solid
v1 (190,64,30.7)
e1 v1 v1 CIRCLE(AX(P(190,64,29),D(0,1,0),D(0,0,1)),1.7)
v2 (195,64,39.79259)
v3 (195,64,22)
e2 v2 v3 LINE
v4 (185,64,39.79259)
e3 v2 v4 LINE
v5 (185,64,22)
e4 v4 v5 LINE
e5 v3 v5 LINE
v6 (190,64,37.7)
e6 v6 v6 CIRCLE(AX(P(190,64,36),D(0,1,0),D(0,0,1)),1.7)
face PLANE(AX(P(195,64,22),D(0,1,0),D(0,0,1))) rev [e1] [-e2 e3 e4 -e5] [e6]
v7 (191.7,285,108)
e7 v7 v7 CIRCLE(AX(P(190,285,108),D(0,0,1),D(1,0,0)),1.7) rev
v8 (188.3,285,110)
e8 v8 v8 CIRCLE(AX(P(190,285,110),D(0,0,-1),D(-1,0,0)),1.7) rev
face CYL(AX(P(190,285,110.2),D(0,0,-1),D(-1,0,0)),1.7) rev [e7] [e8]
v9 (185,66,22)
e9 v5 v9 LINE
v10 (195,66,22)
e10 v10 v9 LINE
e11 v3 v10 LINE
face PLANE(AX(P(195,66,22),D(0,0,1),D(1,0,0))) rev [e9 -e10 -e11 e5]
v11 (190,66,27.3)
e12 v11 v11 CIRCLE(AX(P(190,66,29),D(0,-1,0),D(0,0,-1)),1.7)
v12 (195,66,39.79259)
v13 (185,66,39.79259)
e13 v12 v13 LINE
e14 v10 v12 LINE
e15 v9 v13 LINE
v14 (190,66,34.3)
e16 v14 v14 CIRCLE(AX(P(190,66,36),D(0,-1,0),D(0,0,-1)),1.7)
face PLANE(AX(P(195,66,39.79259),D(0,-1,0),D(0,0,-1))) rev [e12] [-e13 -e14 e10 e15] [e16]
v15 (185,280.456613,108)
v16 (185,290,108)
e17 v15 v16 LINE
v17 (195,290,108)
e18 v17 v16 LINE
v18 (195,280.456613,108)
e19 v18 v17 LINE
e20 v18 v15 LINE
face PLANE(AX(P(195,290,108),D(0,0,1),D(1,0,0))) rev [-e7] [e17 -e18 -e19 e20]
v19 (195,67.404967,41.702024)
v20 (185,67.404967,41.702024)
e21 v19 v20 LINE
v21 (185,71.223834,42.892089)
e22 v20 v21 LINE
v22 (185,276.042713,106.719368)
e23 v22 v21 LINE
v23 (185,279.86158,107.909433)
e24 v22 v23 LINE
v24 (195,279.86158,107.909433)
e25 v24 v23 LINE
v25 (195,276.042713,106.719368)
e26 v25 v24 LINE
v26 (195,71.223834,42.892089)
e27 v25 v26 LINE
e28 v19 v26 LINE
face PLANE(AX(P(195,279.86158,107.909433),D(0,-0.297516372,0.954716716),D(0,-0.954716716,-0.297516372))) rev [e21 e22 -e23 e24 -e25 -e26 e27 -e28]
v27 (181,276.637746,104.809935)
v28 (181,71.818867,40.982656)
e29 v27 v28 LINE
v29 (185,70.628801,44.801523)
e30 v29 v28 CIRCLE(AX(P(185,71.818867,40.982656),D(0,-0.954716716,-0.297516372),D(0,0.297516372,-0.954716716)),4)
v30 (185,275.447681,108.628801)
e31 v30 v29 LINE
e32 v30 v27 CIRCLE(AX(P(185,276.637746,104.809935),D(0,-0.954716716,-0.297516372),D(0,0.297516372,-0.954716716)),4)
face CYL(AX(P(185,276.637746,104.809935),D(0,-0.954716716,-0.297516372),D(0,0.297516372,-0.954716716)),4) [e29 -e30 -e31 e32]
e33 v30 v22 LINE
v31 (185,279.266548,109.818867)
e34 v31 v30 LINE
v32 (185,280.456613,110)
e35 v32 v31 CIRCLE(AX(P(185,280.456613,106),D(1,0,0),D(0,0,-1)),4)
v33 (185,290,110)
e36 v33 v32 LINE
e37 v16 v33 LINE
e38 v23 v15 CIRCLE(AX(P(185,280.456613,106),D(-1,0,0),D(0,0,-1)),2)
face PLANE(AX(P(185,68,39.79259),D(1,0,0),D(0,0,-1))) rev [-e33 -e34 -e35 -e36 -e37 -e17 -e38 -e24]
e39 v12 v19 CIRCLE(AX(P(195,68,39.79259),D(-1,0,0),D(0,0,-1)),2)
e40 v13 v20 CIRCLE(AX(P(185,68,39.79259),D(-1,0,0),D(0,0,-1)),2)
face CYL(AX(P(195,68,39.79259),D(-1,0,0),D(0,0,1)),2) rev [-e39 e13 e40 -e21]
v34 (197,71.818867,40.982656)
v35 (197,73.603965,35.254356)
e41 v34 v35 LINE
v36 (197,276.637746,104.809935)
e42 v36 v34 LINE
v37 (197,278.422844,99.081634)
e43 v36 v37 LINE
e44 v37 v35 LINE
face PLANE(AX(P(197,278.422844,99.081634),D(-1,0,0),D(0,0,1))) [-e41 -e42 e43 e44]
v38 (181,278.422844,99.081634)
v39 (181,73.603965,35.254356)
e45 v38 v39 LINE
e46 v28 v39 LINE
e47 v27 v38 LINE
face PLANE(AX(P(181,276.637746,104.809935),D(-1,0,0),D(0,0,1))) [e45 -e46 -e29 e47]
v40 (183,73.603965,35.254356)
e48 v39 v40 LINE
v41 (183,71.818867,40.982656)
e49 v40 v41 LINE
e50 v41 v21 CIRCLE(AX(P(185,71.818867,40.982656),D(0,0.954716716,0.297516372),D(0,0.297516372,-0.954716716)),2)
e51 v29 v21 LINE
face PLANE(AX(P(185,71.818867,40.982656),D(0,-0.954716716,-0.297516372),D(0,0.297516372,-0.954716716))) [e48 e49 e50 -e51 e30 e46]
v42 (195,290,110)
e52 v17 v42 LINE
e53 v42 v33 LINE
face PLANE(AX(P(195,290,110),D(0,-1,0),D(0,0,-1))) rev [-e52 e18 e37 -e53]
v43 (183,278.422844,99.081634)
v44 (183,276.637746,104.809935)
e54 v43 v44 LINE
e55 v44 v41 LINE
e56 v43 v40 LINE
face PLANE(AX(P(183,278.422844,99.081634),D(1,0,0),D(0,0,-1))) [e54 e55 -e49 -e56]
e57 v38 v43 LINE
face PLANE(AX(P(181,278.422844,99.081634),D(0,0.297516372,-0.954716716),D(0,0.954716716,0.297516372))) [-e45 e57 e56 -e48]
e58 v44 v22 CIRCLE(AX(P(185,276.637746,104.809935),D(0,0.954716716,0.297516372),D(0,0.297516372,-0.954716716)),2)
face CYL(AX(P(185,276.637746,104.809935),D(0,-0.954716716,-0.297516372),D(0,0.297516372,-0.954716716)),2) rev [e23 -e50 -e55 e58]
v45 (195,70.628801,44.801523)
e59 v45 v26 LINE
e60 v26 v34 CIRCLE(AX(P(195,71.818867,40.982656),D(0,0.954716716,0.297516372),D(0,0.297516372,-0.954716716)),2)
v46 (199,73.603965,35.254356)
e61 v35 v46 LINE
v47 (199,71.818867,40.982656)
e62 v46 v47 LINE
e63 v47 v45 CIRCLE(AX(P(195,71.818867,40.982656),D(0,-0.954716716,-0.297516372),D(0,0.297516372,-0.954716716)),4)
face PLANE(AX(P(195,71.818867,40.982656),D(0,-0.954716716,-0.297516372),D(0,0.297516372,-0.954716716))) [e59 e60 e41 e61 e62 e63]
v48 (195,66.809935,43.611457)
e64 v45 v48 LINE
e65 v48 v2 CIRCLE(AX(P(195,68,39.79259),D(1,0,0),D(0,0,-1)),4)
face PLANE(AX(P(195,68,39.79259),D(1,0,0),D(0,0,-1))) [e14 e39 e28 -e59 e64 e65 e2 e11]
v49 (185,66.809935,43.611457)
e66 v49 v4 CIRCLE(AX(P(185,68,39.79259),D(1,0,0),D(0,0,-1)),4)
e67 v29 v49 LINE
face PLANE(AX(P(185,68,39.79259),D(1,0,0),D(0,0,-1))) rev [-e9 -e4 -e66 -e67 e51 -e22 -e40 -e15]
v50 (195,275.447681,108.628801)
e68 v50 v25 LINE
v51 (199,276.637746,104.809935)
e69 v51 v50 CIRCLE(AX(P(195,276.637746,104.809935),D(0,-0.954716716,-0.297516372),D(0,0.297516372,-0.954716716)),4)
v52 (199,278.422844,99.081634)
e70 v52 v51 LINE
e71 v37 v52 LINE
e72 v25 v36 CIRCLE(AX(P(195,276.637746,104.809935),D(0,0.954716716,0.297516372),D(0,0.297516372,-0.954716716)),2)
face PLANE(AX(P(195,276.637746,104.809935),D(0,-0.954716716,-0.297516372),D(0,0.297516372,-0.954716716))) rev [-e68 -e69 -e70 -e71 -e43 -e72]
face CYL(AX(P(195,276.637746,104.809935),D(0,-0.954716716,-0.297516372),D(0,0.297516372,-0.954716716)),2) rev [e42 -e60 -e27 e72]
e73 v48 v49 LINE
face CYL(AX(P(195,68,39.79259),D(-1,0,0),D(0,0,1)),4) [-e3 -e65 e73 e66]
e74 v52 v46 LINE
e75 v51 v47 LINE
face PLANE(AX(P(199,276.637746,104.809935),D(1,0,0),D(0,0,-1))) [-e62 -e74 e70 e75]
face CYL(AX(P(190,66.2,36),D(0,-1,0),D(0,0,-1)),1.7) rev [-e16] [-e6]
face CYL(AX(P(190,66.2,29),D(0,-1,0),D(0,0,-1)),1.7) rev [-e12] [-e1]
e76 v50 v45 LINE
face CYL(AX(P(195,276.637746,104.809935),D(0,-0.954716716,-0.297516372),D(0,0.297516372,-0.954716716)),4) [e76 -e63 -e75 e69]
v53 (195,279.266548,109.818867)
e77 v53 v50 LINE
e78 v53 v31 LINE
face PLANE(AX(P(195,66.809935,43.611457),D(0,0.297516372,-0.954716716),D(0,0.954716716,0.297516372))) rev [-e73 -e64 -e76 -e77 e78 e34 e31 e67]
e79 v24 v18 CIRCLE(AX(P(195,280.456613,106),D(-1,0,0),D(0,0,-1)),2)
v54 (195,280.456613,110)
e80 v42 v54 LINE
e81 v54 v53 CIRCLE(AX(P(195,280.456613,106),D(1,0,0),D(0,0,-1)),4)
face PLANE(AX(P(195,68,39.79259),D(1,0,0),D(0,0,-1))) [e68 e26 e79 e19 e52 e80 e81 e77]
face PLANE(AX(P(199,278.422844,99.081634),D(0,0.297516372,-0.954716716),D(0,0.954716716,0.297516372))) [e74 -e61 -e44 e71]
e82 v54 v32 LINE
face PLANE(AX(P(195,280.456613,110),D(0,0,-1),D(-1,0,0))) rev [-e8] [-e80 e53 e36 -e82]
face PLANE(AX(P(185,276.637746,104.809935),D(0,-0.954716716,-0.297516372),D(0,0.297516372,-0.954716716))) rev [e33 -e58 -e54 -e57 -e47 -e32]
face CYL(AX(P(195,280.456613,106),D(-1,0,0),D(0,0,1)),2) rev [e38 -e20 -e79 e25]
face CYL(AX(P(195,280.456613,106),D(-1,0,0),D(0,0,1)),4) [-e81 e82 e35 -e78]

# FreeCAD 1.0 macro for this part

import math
import FreeCAD as App
import Part
import Sketcher

V = App.Vector
Q = App.Units.Quantity

doc = App.newDocument("Part")
body = doc.addObject("PartDesign::Body", "Body")

# Sketch on YZ plane
sketch1 = doc.addObject("Sketcher::SketchObject", "Sketch")
body.addObject(sketch1)
sketch1.AttachmentSupport = (doc.YZ_Plane, [""])
sketch1.MapMode = "FlatFace"
sketch1.AttachmentOffset = App.Placement(V(0, 0, 185), App.Rotation())
sketch1.addGeometry(Part.LineSegment(V(64, 39.79259, 0), V(64, 22, 0)), False)
sketch1.addGeometry(Part.LineSegment(V(64, 22, 0), V(66, 22, 0)), False)
sketch1.addGeometry(Part.LineSegment(V(66, 22, 0), V(66, 39.79259, 0)), False)
sketch1.addGeometry(Part.ArcOfCircle(Part.Circle(V(68, 39.79259, 0), V(0, 0, 1), 2), math.radians(107.308492), math.radians(180)), False)
sketch1.addGeometry(Part.LineSegment(V(67.404967, 41.702024, 0), V(279.86158, 107.909433, 0)), False)
sketch1.addGeometry(Part.ArcOfCircle(Part.Circle(V(280.456613, 106, 0), V(0, 0, 1), 2), math.radians(90), math.radians(107.308491)), False)
sketch1.addGeometry(Part.LineSegment(V(280.456613, 108, 0), V(290, 108, 0)), False)
sketch1.addGeometry(Part.LineSegment(V(290, 108, 0), V(290, 110, 0)), False)
sketch1.addGeometry(Part.LineSegment(V(290, 110, 0), V(280.456613, 110, 0)), False)
sketch1.addGeometry(Part.ArcOfCircle(Part.Circle(V(280.456613, 106, 0), V(0, 0, 1), 4), math.radians(90), math.radians(107.308492)), False)
sketch1.addGeometry(Part.LineSegment(V(279.266548, 109.818867, 0), V(66.809935, 43.611457, 0)), False)
sketch1.addGeometry(Part.ArcOfCircle(Part.Circle(V(68, 39.79259, 0), V(0, 0, 1), 4), math.radians(107.308492), math.radians(180)), False)
sketch1.addConstraint(Sketcher.Constraint("Coincident", 0, 2, 1, 1))
sketch1.addConstraint(Sketcher.Constraint("Coincident", 1, 2, 2, 1))
sketch1.addConstraint(Sketcher.Constraint("Tangent", 2, 2, 3, 2))
sketch1.addConstraint(Sketcher.Constraint("Tangent", 3, 1, 4, 1))
sketch1.addConstraint(Sketcher.Constraint("Tangent", 4, 2, 5, 2))
sketch1.addConstraint(Sketcher.Constraint("Tangent", 5, 1, 6, 1))
sketch1.addConstraint(Sketcher.Constraint("Coincident", 6, 2, 7, 1))
sketch1.addConstraint(Sketcher.Constraint("Coincident", 7, 2, 8, 1))
sketch1.addConstraint(Sketcher.Constraint("Tangent", 8, 2, 9, 1))
sketch1.addConstraint(Sketcher.Constraint("Tangent", 9, 2, 10, 1))
sketch1.addConstraint(Sketcher.Constraint("Tangent", 10, 2, 11, 1))
sketch1.addConstraint(Sketcher.Constraint("Tangent", 11, 2, 0, 1))
sketch1.addConstraint(Sketcher.Constraint("Vertical", 0))
sketch1.addConstraint(Sketcher.Constraint("Horizontal", 1))
sketch1.addConstraint(Sketcher.Constraint("Vertical", 2))
sketch1.addConstraint(Sketcher.Constraint("Horizontal", 6))
sketch1.addConstraint(Sketcher.Constraint("Vertical", 7))
sketch1.addConstraint(Sketcher.Constraint("Horizontal", 8))
sketch1.addConstraint(Sketcher.Constraint("Coincident", 9, 3, 5, 3))
sketch1.addConstraint(Sketcher.Constraint("Coincident", 11, 3, 3, 3))
sketch1.addConstraint(Sketcher.Constraint("Equal", 3, 5))
sketch1.addConstraint(Sketcher.Constraint("Equal", 9, 11))
sketch1.addConstraint(Sketcher.Constraint("Radius", 3, Q("2 mm")))
sketch1.addConstraint(Sketcher.Constraint("Radius", 9, Q("4 mm")))
sketch1.addConstraint(Sketcher.Constraint("DistanceX", -1, 1, 3, 3, Q("68 mm")))
sketch1.addConstraint(Sketcher.Constraint("DistanceY", -1, 1, 5, 3, Q("106 mm")))
sketch1.addConstraint(Sketcher.Constraint("DistanceY", -1, 1, 0, 2, Q("22 mm")))
sketch1.addConstraint(Sketcher.Constraint("DistanceX", -1, 1, 6, 2, Q("290 mm")))
sketch1.addConstraint(Sketcher.Constraint("DistanceY", 0, 2, 0, 1, Q("17.79259 mm")))
sketch1.addConstraint(Sketcher.Constraint("Distance", 4, Q("222.533668 mm")))
pad1 = doc.addObject("PartDesign::Pad", "Pad")
body.addObject(pad1)
pad1.Profile = sketch1
pad1.Length = 10

# Sketch on an angled plane
sketch2 = doc.addObject("Sketcher::SketchObject", "Sketch001")
body.addObject(sketch2)
sketch2.Placement = App.Placement(V(0, 77.10262, 24.027328), App.Rotation(V(-1, 0, 0), V(0, 0.297516372, -0.954716716), V(0, -0.954716716, -0.297516372), "ZXY"))
sketch2.addGeometry(Part.LineSegment(V(-181, -17.759538, 0), V(-181, -11.759538, 0)), False)
sketch2.addGeometry(Part.LineSegment(V(-181, -11.759538, 0), V(-183, -11.759538, 0)), False)
sketch2.addGeometry(Part.LineSegment(V(-183, -11.759538, 0), V(-183, -17.759538, 0)), False)
sketch2.addGeometry(Part.ArcOfCircle(Part.Circle(V(-185, -17.759538, 0), V(0, 0, 1), 2), math.radians(-90), math.radians(0)), False)
sketch2.addGeometry(Part.LineSegment(V(-185, -19.759538, 0), V(-185.1, -19.759538, 0)), False)
sketch2.addGeometry(Part.LineSegment(V(-185.1, -19.759538, 0), V(-185.1, -21.759538, 0)), False)
sketch2.addGeometry(Part.LineSegment(V(-185.1, -21.759538, 0), V(-185, -21.759538, 0)), False)
sketch2.addGeometry(Part.ArcOfCircle(Part.Circle(V(-185, -17.759538, 0), V(0, 0, 1), 4), math.radians(-90), math.radians(0)), False)
sketch2.addGeometry(Part.LineSegment(V(-199, -11.759538, 0), V(-199, -17.759538, 0)), False)
sketch2.addGeometry(Part.ArcOfCircle(Part.Circle(V(-195, -17.759538, 0), V(0, 0, 1), 4), math.radians(-180), math.radians(-90)), False)
sketch2.addGeometry(Part.LineSegment(V(-195, -21.759538, 0), V(-194.9, -21.759538, 0)), False)
sketch2.addGeometry(Part.LineSegment(V(-194.9, -21.759538, 0), V(-194.9, -19.759538, 0)), False)
sketch2.addGeometry(Part.LineSegment(V(-194.9, -19.759538, 0), V(-195, -19.759538, 0)), False)
sketch2.addGeometry(Part.ArcOfCircle(Part.Circle(V(-195, -17.759538, 0), V(0, 0, 1), 2), math.radians(-180), math.radians(-90)), False)
sketch2.addGeometry(Part.LineSegment(V(-197, -17.759538, 0), V(-197, -11.759538, 0)), False)
sketch2.addGeometry(Part.LineSegment(V(-197, -11.759538, 0), V(-199, -11.759538, 0)), False)
sketch2.addConstraint(Sketcher.Constraint("Coincident", 0, 2, 1, 1))
sketch2.addConstraint(Sketcher.Constraint("Coincident", 1, 2, 2, 1))
sketch2.addConstraint(Sketcher.Constraint("Tangent", 2, 2, 3, 2))
sketch2.addConstraint(Sketcher.Constraint("Tangent", 3, 1, 4, 1))
sketch2.addConstraint(Sketcher.Constraint("Coincident", 4, 2, 5, 1))
sketch2.addConstraint(Sketcher.Constraint("Coincident", 5, 2, 6, 1))
sketch2.addConstraint(Sketcher.Constraint("Tangent", 6, 2, 7, 1))
sketch2.addConstraint(Sketcher.Constraint("Tangent", 7, 2, 0, 1))
sketch2.addConstraint(Sketcher.Constraint("Tangent", 8, 2, 9, 1))
sketch2.addConstraint(Sketcher.Constraint("Tangent", 9, 2, 10, 1))
sketch2.addConstraint(Sketcher.Constraint("Coincident", 10, 2, 11, 1))
sketch2.addConstraint(Sketcher.Constraint("Coincident", 11, 2, 12, 1))
sketch2.addConstraint(Sketcher.Constraint("Tangent", 12, 2, 13, 2))
sketch2.addConstraint(Sketcher.Constraint("Tangent", 13, 1, 14, 1))
sketch2.addConstraint(Sketcher.Constraint("Coincident", 14, 2, 15, 1))
sketch2.addConstraint(Sketcher.Constraint("Coincident", 15, 2, 8, 1))
sketch2.addConstraint(Sketcher.Constraint("Vertical", 0))
sketch2.addConstraint(Sketcher.Constraint("Horizontal", 1))
sketch2.addConstraint(Sketcher.Constraint("Vertical", 2))
sketch2.addConstraint(Sketcher.Constraint("Horizontal", 4))
sketch2.addConstraint(Sketcher.Constraint("Vertical", 5))
sketch2.addConstraint(Sketcher.Constraint("Horizontal", 6))
sketch2.addConstraint(Sketcher.Constraint("Vertical", 8))
sketch2.addConstraint(Sketcher.Constraint("Horizontal", 10))
sketch2.addConstraint(Sketcher.Constraint("Vertical", 11))
sketch2.addConstraint(Sketcher.Constraint("Horizontal", 12))
sketch2.addConstraint(Sketcher.Constraint("Vertical", 14))
sketch2.addConstraint(Sketcher.Constraint("Horizontal", 15))
sketch2.addConstraint(Sketcher.Constraint("Coincident", 7, 3, 3, 3))
sketch2.addConstraint(Sketcher.Constraint("Coincident", 13, 3, 9, 3))
sketch2.addConstraint(Sketcher.Constraint("Equal", 7, 9))
sketch2.addConstraint(Sketcher.Constraint("Equal", 3, 13))
sketch2.addConstraint(Sketcher.Constraint("Horizontal", 7, 3, 9, 3))
sketch2.addConstraint(Sketcher.Constraint("Horizontal", 1, 2, 14, 2))
sketch2.addConstraint(Sketcher.Constraint("Equal", 6, 10))
sketch2.addConstraint(Sketcher.Constraint("Radius", 3, Q("2 mm")))
sketch2.addConstraint(Sketcher.Constraint("Radius", 7, Q("4 mm")))
sketch2.addConstraint(Sketcher.Constraint("DistanceY", 0, 1, 0, 2, Q("6 mm")))
sketch2.addConstraint(Sketcher.Constraint("DistanceX", 4, 2, 4, 1, Q("0.1 mm")))
sketch2.addConstraint(Sketcher.Constraint("DistanceX", 3, 3, -1, 1, Q("185 mm")))
sketch2.addConstraint(Sketcher.Constraint("DistanceX", 9, 3, -1, 1, Q("195 mm")))
sketch2.addConstraint(Sketcher.Constraint("DistanceY", 3, 3, -1, 1, Q("17.759538 mm")))
pad2 = doc.addObject("PartDesign::Pad", "Pad001")
body.addObject(pad2)
pad2.Profile = sketch2
pad2.Length = 214.533668
pad2.Reversed = True

# Sketch on XZ plane
sketch3 = doc.addObject("Sketcher::SketchObject", "Sketch002")
body.addObject(sketch3)
sketch3.AttachmentSupport = (doc.XZ_Plane, [""])
sketch3.MapMode = "FlatFace"
sketch3.AttachmentOffset = App.Placement(V(0, 0, -63.8), App.Rotation())
sketch3.addGeometry(Part.Circle(V(190, 29, 0), V(0, 0, 1), 1.7), False)
sketch3.addGeometry(Part.Circle(V(190, 36, 0), V(0, 0, 1), 1.7), False)
sketch3.addConstraint(Sketcher.Constraint("Equal", 0, 1))
sketch3.addConstraint(Sketcher.Constraint("Vertical", 0, 3, 1, 3))
sketch3.addConstraint(Sketcher.Constraint("Diameter", 0, Q("3.4 mm")))
sketch3.addConstraint(Sketcher.Constraint("DistanceX", -1, 1, 0, 3, Q("190 mm")))
sketch3.addConstraint(Sketcher.Constraint("DistanceY", -1, 1, 0, 3, Q("29 mm")))
sketch3.addConstraint(Sketcher.Constraint("DistanceY", -1, 1, 1, 3, Q("36 mm")))
pocket1 = doc.addObject("PartDesign::Pocket", "Pocket")
body.addObject(pocket1)
pocket1.Profile = sketch3
pocket1.Length = 2.4

# Sketch on XY plane
sketch4 = doc.addObject("Sketcher::SketchObject", "Sketch003")
body.addObject(sketch4)
sketch4.AttachmentSupport = (doc.XY_Plane, [""])
sketch4.MapMode = "FlatFace"
sketch4.AttachmentOffset = App.Placement(V(0, 0, 107.8), App.Rotation())
sketch4.addGeometry(Part.Circle(V(190, 285, 0), V(0, 0, 1), 1.7), False)
sketch4.addConstraint(Sketcher.Constraint("Diameter", 0, Q("3.4 mm")))
sketch4.addConstraint(Sketcher.Constraint("DistanceX", -1, 1, 0, 3, Q("190 mm")))
sketch4.addConstraint(Sketcher.Constraint("DistanceY", -1, 1, 0, 3, Q("285 mm")))
pocket2 = doc.addObject("PartDesign::Pocket", "Pocket001")
body.addObject(pocket2)
pocket2.Profile = sketch4
pocket2.Length = 2.4
pocket2.Reversed = True

doc.recompute()
